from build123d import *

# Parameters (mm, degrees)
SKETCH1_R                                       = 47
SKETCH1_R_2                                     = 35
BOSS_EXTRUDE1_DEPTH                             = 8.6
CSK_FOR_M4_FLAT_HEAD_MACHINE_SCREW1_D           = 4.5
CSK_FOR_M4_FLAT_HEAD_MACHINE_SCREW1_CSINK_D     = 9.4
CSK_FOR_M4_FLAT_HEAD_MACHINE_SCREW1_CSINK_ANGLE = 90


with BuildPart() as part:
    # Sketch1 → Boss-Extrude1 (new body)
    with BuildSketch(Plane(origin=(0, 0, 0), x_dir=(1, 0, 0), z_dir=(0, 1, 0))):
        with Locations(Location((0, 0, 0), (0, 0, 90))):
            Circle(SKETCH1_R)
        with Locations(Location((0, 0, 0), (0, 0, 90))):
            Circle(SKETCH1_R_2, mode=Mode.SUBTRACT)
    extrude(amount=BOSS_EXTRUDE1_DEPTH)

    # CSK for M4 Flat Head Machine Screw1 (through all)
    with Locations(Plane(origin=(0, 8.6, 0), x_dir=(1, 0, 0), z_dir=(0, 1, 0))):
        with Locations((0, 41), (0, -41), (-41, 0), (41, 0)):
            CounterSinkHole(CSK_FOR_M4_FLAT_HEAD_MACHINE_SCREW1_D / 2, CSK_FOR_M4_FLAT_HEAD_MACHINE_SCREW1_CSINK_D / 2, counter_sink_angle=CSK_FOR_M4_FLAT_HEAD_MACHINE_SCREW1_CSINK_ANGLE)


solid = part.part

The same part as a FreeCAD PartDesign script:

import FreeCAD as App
import Part
import Sketcher
from FreeCAD import Vector
Q = App.Units.Quantity

doc = App.newDocument("Part")
body = doc.addObject("PartDesign::Body", "Body")

# Sketch on XZ plane
sketch1 = body.newObject("Sketcher::SketchObject", "Sketch")
sketch1.AttachmentSupport = (doc.getObject("XZ_Plane"), [""])
sketch1.MapMode = "FlatFace"
sketch1.addGeometry(Part.Circle(Vector(0, 0, 0), Vector(0, 0, 1), 47), False)
sketch1.addGeometry(Part.Circle(Vector(0, 0, 0), Vector(0, 0, 1), 35), False)
sketch1.addConstraint(Sketcher.Constraint("Coincident", 0, 3, -1, 1))
sketch1.addConstraint(Sketcher.Constraint("Coincident", 1, 3, -1, 1))
sketch1.addConstraint(Sketcher.Constraint("Diameter", 0, Q("94 mm")))
sketch1.addConstraint(Sketcher.Constraint("Diameter", 1, Q("70 mm")))
pad1 = body.newObject("PartDesign::Pad", "Pad")
pad1.Profile = sketch1
pad1.Length = 8.6
pad1.Reversed = True

# Sketch on XZ plane
sketch2 = body.newObject("Sketcher::SketchObject", "Sketch001")
sketch2.AttachmentSupport = (doc.getObject("XZ_Plane"), [""])
sketch2.MapMode = "FlatFace"
sketch2.AttachmentOffset = App.Placement(Vector(0, 0, -8.6), App.Rotation())
sketch2.addGeometry(Part.Circle(Vector(0, -41, 0), Vector(0, 0, 1), 2.25), False)
sketch2.addGeometry(Part.Circle(Vector(0, 41, 0), Vector(0, 0, 1), 2.25), False)
sketch2.addGeometry(Part.Circle(Vector(-41, 0, 0), Vector(0, 0, 1), 2.25), False)
sketch2.addGeometry(Part.Circle(Vector(41, 0, 0), Vector(0, 0, 1), 2.25), False)
sketch2.addConstraint(Sketcher.Constraint("Equal", 0, 1))
sketch2.addConstraint(Sketcher.Constraint("Equal", 1, 2))
sketch2.addConstraint(Sketcher.Constraint("Equal", 2, 3))
sketch2.addConstraint(Sketcher.Constraint("Symmetric", 0, 3, 1, 3, -1, 1))
sketch2.addConstraint(Sketcher.Constraint("Symmetric", 2, 3, 3, 3, -1, 1))
sketch2.addConstraint(Sketcher.Constraint("PointOnObject", 0, 3, -2))
sketch2.addConstraint(Sketcher.Constraint("PointOnObject", 2, 3, -1))
sketch2.addConstraint(Sketcher.Constraint("Diameter", 0, Q("4.5 mm")))
sketch2.addConstraint(Sketcher.Constraint("DistanceY", 0, 3, -1, 1, Q("41 mm")))
sketch2.addConstraint(Sketcher.Constraint("DistanceX", 2, 3, -1, 1, Q("41 mm")))
doc.recompute()
hole = body.newObject("PartDesign::Hole", "Hole")
hole.Profile = sketch2
hole.ThreadType = "None"
hole.Diameter = 4.5
hole.DepthType = "ThroughAll"
hole.HoleCutType = "Countersink"
hole.HoleCutDiameter = 9.4
hole.HoleCutCountersinkAngle = 90
hole.Reversed = True

doc.recompute()
